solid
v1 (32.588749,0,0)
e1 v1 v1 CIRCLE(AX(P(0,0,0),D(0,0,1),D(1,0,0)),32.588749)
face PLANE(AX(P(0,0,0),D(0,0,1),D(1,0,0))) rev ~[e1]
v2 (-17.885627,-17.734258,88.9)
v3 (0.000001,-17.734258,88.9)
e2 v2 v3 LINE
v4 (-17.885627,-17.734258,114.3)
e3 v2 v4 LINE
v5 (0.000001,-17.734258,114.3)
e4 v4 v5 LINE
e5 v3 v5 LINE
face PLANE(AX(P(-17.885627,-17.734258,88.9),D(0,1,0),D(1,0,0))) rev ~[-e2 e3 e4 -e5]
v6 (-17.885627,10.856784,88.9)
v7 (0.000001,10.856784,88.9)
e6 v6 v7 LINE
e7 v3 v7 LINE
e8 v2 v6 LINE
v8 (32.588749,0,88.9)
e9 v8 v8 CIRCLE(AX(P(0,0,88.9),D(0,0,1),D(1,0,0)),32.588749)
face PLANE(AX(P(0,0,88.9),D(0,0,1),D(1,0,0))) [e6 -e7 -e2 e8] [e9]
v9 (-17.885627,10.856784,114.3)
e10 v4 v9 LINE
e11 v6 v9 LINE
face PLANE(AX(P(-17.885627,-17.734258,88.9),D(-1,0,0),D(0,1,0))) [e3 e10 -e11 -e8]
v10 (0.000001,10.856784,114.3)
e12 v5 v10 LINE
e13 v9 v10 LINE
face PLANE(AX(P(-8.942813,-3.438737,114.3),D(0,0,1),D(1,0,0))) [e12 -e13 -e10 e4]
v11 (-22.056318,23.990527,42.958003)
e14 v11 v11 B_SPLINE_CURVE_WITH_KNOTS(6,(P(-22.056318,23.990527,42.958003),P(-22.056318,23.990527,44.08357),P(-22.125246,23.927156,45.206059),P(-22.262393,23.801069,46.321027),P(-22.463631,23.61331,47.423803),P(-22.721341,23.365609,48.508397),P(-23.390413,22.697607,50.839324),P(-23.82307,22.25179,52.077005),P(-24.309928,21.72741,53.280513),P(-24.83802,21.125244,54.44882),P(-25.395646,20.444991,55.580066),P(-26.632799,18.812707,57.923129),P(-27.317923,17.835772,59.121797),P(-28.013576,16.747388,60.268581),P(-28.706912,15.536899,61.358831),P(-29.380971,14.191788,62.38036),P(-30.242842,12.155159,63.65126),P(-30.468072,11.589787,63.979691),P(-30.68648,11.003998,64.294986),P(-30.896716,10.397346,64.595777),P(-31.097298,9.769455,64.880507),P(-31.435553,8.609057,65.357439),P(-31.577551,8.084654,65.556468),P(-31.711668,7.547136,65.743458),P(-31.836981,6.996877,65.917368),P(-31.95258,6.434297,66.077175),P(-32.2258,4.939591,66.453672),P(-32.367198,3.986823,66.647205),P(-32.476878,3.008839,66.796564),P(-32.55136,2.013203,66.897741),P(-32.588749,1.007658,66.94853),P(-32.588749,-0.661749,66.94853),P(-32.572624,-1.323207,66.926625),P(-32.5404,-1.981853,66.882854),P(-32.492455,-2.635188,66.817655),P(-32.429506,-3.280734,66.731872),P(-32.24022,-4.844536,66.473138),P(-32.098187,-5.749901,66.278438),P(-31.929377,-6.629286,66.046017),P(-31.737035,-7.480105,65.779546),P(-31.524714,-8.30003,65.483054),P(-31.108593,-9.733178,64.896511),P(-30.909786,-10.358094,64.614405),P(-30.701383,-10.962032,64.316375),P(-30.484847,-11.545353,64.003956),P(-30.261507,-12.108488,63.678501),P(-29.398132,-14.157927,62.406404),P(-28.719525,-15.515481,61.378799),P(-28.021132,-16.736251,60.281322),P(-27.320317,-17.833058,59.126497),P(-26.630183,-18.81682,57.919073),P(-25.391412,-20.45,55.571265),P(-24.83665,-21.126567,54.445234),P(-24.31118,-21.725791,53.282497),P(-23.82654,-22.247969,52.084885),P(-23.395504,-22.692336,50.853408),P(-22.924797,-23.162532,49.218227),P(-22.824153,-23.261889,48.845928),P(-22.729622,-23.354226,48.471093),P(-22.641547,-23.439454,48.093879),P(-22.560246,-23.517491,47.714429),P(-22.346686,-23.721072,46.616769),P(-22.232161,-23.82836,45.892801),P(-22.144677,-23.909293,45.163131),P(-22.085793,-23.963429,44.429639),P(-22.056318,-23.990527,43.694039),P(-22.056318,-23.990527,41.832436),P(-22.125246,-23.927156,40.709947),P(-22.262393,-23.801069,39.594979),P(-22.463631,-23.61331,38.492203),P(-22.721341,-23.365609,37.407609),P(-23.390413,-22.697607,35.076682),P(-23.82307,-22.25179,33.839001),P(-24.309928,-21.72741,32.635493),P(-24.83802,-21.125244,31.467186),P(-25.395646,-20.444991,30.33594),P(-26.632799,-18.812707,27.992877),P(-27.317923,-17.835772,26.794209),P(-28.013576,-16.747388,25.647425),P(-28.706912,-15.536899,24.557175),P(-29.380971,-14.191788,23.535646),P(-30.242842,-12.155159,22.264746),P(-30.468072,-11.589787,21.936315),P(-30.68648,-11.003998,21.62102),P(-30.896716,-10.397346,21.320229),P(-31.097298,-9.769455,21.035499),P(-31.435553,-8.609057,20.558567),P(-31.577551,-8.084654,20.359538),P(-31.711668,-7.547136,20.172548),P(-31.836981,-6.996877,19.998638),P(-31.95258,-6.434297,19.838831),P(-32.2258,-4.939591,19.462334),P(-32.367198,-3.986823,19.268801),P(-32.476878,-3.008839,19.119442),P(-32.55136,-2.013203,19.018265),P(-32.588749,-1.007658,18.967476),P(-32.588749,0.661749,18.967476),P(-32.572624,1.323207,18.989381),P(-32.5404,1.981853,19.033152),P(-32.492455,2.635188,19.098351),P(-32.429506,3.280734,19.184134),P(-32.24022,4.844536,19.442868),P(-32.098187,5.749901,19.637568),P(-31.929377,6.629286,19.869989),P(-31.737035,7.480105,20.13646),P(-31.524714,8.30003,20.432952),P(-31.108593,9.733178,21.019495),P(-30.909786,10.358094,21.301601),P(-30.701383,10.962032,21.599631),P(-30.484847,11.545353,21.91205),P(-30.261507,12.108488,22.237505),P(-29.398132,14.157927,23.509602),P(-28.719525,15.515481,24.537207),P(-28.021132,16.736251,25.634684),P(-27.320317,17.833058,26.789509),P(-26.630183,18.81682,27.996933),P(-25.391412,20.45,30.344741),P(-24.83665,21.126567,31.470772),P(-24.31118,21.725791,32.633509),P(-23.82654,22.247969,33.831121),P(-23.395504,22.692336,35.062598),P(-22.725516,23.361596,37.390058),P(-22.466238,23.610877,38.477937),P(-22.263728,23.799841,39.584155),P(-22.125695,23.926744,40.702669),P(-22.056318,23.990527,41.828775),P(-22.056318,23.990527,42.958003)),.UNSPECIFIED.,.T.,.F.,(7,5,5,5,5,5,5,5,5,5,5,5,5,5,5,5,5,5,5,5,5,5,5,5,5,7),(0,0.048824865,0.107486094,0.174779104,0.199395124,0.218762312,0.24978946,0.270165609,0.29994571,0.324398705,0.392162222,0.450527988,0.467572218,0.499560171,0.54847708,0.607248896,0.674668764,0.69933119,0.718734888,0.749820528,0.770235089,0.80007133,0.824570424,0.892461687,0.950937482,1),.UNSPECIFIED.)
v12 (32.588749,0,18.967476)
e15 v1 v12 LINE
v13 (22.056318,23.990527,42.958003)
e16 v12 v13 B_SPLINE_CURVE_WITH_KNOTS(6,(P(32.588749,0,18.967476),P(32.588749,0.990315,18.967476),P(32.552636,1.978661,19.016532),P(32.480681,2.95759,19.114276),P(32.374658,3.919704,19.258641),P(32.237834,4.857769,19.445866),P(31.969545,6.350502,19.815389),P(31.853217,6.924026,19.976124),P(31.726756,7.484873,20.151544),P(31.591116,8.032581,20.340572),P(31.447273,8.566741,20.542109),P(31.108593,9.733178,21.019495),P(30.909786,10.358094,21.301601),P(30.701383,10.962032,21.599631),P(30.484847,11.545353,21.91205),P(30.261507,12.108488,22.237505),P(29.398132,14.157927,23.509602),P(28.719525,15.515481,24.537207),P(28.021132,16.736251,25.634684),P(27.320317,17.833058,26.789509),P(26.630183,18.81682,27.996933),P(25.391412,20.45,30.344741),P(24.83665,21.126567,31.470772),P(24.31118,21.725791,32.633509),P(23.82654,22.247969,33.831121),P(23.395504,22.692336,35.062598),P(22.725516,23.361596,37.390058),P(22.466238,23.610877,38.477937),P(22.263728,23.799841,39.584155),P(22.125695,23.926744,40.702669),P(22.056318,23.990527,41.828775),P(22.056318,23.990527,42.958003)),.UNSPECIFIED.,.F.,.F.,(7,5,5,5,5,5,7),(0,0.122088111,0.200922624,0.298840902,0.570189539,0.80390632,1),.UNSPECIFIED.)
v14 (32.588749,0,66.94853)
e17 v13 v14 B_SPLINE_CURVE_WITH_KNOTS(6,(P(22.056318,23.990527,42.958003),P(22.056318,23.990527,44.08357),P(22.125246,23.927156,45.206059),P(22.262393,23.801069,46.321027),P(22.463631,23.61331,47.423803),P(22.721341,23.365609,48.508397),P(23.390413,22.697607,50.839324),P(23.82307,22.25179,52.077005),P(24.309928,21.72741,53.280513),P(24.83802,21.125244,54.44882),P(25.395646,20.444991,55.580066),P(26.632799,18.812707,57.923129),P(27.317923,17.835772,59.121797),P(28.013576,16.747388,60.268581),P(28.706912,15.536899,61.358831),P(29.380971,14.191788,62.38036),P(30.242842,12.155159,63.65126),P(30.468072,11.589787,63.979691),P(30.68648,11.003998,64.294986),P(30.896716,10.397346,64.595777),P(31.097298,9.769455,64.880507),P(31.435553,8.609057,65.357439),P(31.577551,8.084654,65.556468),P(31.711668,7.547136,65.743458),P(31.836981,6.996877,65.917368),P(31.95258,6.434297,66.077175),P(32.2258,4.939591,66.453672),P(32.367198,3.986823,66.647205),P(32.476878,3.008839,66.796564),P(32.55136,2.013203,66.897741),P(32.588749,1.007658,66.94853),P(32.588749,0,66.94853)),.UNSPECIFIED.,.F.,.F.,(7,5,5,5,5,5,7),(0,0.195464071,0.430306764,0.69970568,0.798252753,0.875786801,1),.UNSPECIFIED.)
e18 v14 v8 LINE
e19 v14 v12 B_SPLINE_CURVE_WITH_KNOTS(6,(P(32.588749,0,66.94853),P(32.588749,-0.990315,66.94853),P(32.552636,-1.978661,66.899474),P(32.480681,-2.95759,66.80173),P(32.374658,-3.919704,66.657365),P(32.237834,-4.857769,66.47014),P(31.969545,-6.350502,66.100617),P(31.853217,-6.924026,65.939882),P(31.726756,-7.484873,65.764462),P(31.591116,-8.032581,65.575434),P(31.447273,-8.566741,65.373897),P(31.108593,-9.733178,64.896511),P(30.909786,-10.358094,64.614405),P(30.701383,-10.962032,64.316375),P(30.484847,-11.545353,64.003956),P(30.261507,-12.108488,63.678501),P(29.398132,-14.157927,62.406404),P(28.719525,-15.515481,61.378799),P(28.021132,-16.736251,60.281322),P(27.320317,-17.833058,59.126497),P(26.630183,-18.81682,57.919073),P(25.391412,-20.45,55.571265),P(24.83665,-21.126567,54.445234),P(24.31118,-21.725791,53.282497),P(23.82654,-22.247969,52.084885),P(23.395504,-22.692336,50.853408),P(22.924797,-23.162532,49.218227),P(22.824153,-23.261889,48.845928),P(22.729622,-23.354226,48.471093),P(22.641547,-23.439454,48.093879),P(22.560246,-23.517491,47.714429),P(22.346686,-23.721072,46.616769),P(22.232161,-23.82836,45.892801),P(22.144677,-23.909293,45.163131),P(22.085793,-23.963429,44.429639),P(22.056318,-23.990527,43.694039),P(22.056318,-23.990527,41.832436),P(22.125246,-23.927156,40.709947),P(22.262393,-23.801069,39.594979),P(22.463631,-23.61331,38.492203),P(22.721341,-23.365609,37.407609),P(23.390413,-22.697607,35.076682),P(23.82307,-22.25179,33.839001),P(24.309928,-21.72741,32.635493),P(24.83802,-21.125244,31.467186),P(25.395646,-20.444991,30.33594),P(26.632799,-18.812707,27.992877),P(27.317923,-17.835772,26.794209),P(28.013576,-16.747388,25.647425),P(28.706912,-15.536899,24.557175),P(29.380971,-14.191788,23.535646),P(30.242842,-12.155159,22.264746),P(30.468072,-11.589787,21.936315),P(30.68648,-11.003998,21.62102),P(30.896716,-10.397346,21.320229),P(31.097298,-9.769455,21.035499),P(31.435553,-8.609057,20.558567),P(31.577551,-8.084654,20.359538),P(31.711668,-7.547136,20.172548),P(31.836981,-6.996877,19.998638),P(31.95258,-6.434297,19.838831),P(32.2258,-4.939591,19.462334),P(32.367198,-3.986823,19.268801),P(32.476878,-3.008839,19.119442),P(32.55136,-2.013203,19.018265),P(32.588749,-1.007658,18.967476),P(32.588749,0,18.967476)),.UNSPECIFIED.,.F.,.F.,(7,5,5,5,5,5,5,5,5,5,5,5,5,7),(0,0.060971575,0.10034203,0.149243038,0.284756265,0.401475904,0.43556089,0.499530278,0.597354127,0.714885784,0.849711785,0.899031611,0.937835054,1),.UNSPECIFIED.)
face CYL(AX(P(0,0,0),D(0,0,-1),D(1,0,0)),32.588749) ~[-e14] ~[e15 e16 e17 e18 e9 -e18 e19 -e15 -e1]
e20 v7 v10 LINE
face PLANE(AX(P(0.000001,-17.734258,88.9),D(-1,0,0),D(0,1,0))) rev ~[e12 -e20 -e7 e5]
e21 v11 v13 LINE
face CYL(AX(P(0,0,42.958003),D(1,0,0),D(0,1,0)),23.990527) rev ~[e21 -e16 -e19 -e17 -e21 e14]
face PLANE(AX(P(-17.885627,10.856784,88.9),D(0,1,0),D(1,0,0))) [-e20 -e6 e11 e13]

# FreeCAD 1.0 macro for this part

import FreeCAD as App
import Part
import Sketcher

V = App.Vector
Q = App.Units.Quantity

doc = App.newDocument("Part")
body = doc.addObject("PartDesign::Body", "Body")

sketch1 = doc.addObject("Sketcher::SketchObject", "Sketch")
body.addObject(sketch1)
sketch1.AttachmentSupport = (doc.XY_Plane, [""])
sketch1.MapMode = "FlatFace"
sketch1.addGeometry(Part.Circle(V(0, 0, 0), V(0, 0, 1), 33), False)
sketch1.addConstraint([
    Sketcher.Constraint("Coincident", 0, 3, -1, 1),
    Sketcher.Constraint("Diameter", 0, 65.177498),
])
pad1 = doc.addObject("PartDesign::Pad", "Pad")
body.addObject(pad1)
pad1.Profile = sketch1
pad1.Length = Q("3.5 in")

sketch2 = doc.addObject("Sketcher::SketchObject", "Sketch001")
body.addObject(sketch2)
sketch2.AttachmentSupport = (doc.XY_Plane, [""])
sketch2.MapMode = "FlatFace"
sketch2.AttachmentOffset = App.Placement(V(0, 0, 3.5 * 25.4), App.Rotation())
sketch2.addGeometry([
    Part.LineSegment(V(-18, 11, 0), V(-18, -18, 0)),
    Part.LineSegment(V(-18, -18, 0), V(0, -18, 0)),
    Part.LineSegment(V(0, -18, 0), V(0, 11, 0)),
    Part.LineSegment(V(0, 11, 0), V(-18, 11, 0)),
], False)
sketch2.addConstraint([
    Sketcher.Constraint("Coincident", 0, 2, 1, 1),
    Sketcher.Constraint("Coincident", 1, 2, 2, 1),
    Sketcher.Constraint("Coincident", 2, 2, 3, 1),
    Sketcher.Constraint("Coincident", 3, 2, 0, 1),
    Sketcher.Constraint("Vertical", 0),
    Sketcher.Constraint("Horizontal", 1),
    Sketcher.Constraint("Vertical", 2),
    Sketcher.Constraint("Horizontal", 3),
    Sketcher.Constraint("PointOnObject", 1, 2, -2),
    Sketcher.Constraint("DistanceX", 1, 1, 1, 2, 17.885627),
    Sketcher.Constraint("DistanceY", 0, 2, 0, 1, 28.591043),
    Sketcher.Constraint("DistanceY", 0, 2, -1, 1, 17.734258),
])
pad2 = doc.addObject("PartDesign::Pad", "Pad001")
body.addObject(pad2)
pad2.Profile = sketch2
pad2.Length = Q("1 in")

sketch3 = doc.addObject("Sketcher::SketchObject", "Sketch002")
body.addObject(sketch3)
sketch3.AttachmentSupport = (doc.YZ_Plane, [""])
sketch3.MapMode = "FlatFace"
sketch3.addGeometry(Part.Circle(V(0, 43, 0), V(0, 0, 1), 24), False)
sketch3.addConstraint([
    Sketcher.Constraint("PointOnObject", 0, 3, -2),
    Sketcher.Constraint("Diameter", 0, 47.981054),
    Sketcher.Constraint("DistanceY", -1, 1, 0, 3, 42.958003),
])
pocket1 = doc.addObject("PartDesign::Pocket", "Pocket")
body.addObject(pocket1)
pocket1.Profile = sketch3
pocket1.Length = Q("3.35 in")
pocket1.Midplane = True

doc.recompute()
